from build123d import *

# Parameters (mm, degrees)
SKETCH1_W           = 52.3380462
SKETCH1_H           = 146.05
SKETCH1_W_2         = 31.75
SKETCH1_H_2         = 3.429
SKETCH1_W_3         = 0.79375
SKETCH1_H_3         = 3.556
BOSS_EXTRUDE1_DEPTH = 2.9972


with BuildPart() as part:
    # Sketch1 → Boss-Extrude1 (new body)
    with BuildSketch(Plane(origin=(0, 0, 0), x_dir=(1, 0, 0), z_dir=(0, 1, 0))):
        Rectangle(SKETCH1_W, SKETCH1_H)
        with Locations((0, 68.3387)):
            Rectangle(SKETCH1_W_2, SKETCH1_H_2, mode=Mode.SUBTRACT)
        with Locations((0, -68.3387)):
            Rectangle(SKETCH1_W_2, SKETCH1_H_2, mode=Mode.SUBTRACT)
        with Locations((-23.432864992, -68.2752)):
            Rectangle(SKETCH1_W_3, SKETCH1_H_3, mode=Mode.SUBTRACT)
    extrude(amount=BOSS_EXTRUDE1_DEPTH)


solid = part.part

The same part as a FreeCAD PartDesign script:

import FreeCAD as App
import Part
import Sketcher
from FreeCAD import Vector
Q = App.Units.Quantity


def add_polygon(sketch, points):
    """Adds a closed chain of lines whose ends are joined by coincident constraints."""
    first, n = sketch.GeometryCount, len(points)
    for a, b in zip(points, points[1:] + points[:1]):
        sketch.addGeometry(Part.LineSegment(App.Vector(*a, 0), App.Vector(*b, 0)), False)
    for i in range(n):
        sketch.addConstraint(Sketcher.Constraint("Coincident", first + i, 2, first + (i + 1) % n, 1))

doc = App.newDocument("Part")
body = doc.addObject("PartDesign::Body", "Body")

sketch1 = body.newObject("Sketcher::SketchObject", "Sketch")
sketch1.AttachmentSupport = (doc.getObject("XZ_Plane"), [""])
sketch1.MapMode = "FlatFace"
add_polygon(sketch1, [(-26.2, -73), (-26.2, 73), (26.2, 73), (26.2, -73)])
add_polygon(sketch1, [(-23, 70.1), (-23.8, 70.1), (-23.8, 66.5), (-23, 66.5)])
add_polygon(sketch1, [(15.9, 70.1), (-15.9, 70.1), (-15.9, 66.6), (15.9, 66.6)])
add_polygon(sketch1, [(15.9, -66.6), (-15.9, -66.6), (-15.9, -70.1), (15.9, -70.1)])
sketch1.addConstraint([
    Sketcher.Constraint("Vertical", 0),
    Sketcher.Constraint("Horizontal", 1),
    Sketcher.Constraint("Vertical", 2),
    Sketcher.Constraint("Horizontal", 3),
    Sketcher.Constraint("Horizontal", 4),
    Sketcher.Constraint("Vertical", 5),
    Sketcher.Constraint("Horizontal", 6),
    Sketcher.Constraint("Vertical", 7),
    Sketcher.Constraint("Horizontal", 8),
    Sketcher.Constraint("Vertical", 9),
    Sketcher.Constraint("Horizontal", 10),
    Sketcher.Constraint("Vertical", 11),
    Sketcher.Constraint("Horizontal", 12),
    Sketcher.Constraint("Vertical", 13),
    Sketcher.Constraint("Horizontal", 14),
    Sketcher.Constraint("Vertical", 15),
    Sketcher.Constraint("Symmetric", 0, 2, 2, 2, -1, 1),
    Sketcher.Constraint("Symmetric", 10, 2, 12, 2, -1, 1),
    Sketcher.Constraint("Symmetric", 8, 2, 14, 2, -1, 1),
    Sketcher.Constraint("Horizontal", 7, 2, 8, 2),
    Sketcher.Constraint("Vertical", 9, 2, 12, 2),
    Sketcher.Constraint("DistanceX", 8, 2, 8, 1, Q("1.25 in")),
    Sketcher.Constraint("DistanceY", 0, 1, 0, 2, Q("5.75 in")),
    Sketcher.Constraint("DistanceY", 5, 2, 5, 1, Q("0.14 in")),
    Sketcher.Constraint("DistanceX", 4, 2, 4, 1, Q("0.03125 in")),
    Sketcher.Constraint("DistanceY", 9, 2, 9, 1, Q("0.135 in")),
    Sketcher.Constraint("DistanceY", -1, 1, 4, 2, Q("2.758 in")),
    Sketcher.Constraint("DistanceX", 1, 1, 1, 2, Q("52.338046 mm")),
    Sketcher.Constraint("DistanceX", 4, 2, -1, 1, Q("23.82974 mm")),
])
pad1 = body.newObject("PartDesign::Pad", "Pad")
pad1.Profile = sketch1
pad1.Length = Q("0.118 in")
pad1.Reversed = True

doc.recompute()
